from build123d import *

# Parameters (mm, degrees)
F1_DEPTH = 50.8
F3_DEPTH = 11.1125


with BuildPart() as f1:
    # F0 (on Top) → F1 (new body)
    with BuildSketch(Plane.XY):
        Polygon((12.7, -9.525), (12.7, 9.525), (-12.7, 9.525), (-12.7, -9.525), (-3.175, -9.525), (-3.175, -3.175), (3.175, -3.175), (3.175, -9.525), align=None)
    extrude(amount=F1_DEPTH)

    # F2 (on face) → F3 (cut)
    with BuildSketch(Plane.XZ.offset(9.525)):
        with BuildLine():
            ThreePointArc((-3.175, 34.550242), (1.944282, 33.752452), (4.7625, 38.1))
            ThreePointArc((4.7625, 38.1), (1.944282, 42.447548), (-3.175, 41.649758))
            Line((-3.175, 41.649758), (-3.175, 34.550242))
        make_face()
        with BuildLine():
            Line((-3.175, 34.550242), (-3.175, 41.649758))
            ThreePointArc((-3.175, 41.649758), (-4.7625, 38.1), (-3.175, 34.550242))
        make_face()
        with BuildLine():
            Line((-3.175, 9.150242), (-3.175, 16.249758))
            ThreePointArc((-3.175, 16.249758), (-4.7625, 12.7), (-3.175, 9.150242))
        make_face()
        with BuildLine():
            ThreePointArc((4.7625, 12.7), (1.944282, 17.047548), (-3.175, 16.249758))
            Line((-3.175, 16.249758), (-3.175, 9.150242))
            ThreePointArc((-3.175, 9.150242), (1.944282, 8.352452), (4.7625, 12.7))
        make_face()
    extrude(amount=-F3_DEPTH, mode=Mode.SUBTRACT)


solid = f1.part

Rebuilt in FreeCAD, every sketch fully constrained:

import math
import FreeCAD as App
import Part
import Sketcher
from FreeCAD import Vector
Q = App.Units.Quantity

doc = App.newDocument("Part")
body = doc.addObject("PartDesign::Body", "Body")

# Sketch on XY plane
sketch1 = body.newObject("Sketcher::SketchObject", "Sketch")
sketch1.AttachmentSupport = (doc.getObject("XY_Plane"), [""])
sketch1.MapMode = "FlatFace"
sketch1.addGeometry([
    Part.LineSegment(Vector(13, -10, 0), Vector(13, 10, 0)),  # 0
    Part.LineSegment(Vector(13, 10, 0), Vector(-13, 10, 0)),  # 1
    Part.LineSegment(Vector(-13, 10, 0), Vector(-13, -10, 0)),  # 2
    Part.LineSegment(Vector(-13, -10, 0), Vector(-3, -10, 0)),  # 3
    Part.LineSegment(Vector(-3, -10, 0), Vector(-3, -3, 0)),  # 4
    Part.LineSegment(Vector(-3, -3, 0), Vector(3, -3, 0)),  # 5
    Part.LineSegment(Vector(3, -3, 0), Vector(3, -10, 0)),  # 6
    Part.LineSegment(Vector(3, -10, 0), Vector(13, -10, 0)),  # 7
], False)
sketch1.addConstraint([
    Sketcher.Constraint("Coincident", 0, 2, 1, 1),
    Sketcher.Constraint("Coincident", 1, 2, 2, 1),
    Sketcher.Constraint("Coincident", 2, 2, 3, 1),
    Sketcher.Constraint("Coincident", 3, 2, 4, 1),
    Sketcher.Constraint("Coincident", 4, 2, 5, 1),
    Sketcher.Constraint("Coincident", 5, 2, 6, 1),
    Sketcher.Constraint("Coincident", 6, 2, 7, 1),
    Sketcher.Constraint("Coincident", 7, 2, 0, 1),
    Sketcher.Constraint("Vertical", 0),
    Sketcher.Constraint("Horizontal", 1),
    Sketcher.Constraint("Vertical", 2),
    Sketcher.Constraint("Horizontal", 3),
    Sketcher.Constraint("Vertical", 4),
    Sketcher.Constraint("Horizontal", 5),
    Sketcher.Constraint("Vertical", 6),
    Sketcher.Constraint("Horizontal", 7),
    Sketcher.Constraint("Symmetric", 0, 2, 2, 2, -1, 1),
    Sketcher.Constraint("Symmetric", 3, 2, 6, 2, -2),
    Sketcher.Constraint("Equal", 5, 4),
    Sketcher.Constraint("DistanceX", 1, 2, 1, 1, Q("1 in")),
    Sketcher.Constraint("DistanceX", 5, 1, 5, 2, Q("0.25 in")),
    Sketcher.Constraint("DistanceY", 0, 1, 0, 2, Q("0.75 in")),
])
pad1 = body.newObject("PartDesign::Pad", "Pad")
pad1.Profile = sketch1
pad1.Length = Q("2 in")

# Sketch on XZ plane
sketch2 = body.newObject("Sketcher::SketchObject", "Sketch001")
sketch2.AttachmentSupport = (doc.getObject("XZ_Plane"), [""])
sketch2.MapMode = "FlatFace"
sketch2.AttachmentOffset = App.Placement(Vector(0, 0, 0.375 * 25.4), App.Rotation())
sketch2.addGeometry([
    Part.ArcOfCircle(Part.Circle(Vector(0, 38.1, 0), Vector(0, 0, 1), 4.8), math.radians(-132), math.radians(0)),  # 0
    Part.ArcOfCircle(Part.Circle(Vector(0, 38.1, 0), Vector(0, 0, 1), 4.8), math.radians(0), math.radians(132)),  # 1
    Part.ArcOfCircle(Part.Circle(Vector(0, 38.1, 0), Vector(0, 0, 1), 4.8), math.radians(132), math.radians(228)),  # 2
    Part.ArcOfCircle(Part.Circle(Vector(0, 12.7, 0), Vector(0, 0, 1), 4.8), math.radians(132), math.radians(228)),  # 3
    Part.ArcOfCircle(Part.Circle(Vector(0, 12.7, 0), Vector(0, 0, 1), 4.8), math.radians(-132), math.radians(0)),  # 4
    Part.ArcOfCircle(Part.Circle(Vector(0, 12.7, 0), Vector(0, 0, 1), 4.8), math.radians(0), math.radians(132)),  # 5
], False)
sketch2.addConstraint([
    Sketcher.Constraint("Tangent", 0, 2, 1, 1),
    Sketcher.Constraint("Tangent", 1, 2, 2, 1),
    Sketcher.Constraint("Tangent", 2, 2, 0, 1),
    Sketcher.Constraint("Tangent", 3, 2, 4, 1),
    Sketcher.Constraint("Tangent", 4, 2, 5, 1),
    Sketcher.Constraint("Tangent", 5, 2, 3, 1),
    Sketcher.Constraint("Equal", 2, 3),
    Sketcher.Constraint("PointOnObject", 0, 3, -2),
    Sketcher.Constraint("PointOnObject", 3, 3, -2),
    Sketcher.Constraint("Horizontal", 2, 3, 0, 2),
    Sketcher.Constraint("Horizontal", 5, 3, 4, 2),
    Sketcher.Constraint("Vertical", 1, 2, 2, 2),
    Sketcher.Constraint("Vertical", 2, 2, 3, 2),
    Sketcher.Constraint("Vertical", 3, 2, 5, 2),
    Sketcher.Constraint("Radius", 0, Q("0.1875 in")),
    Sketcher.Constraint("DistanceY", 3, 3, 1, 3, Q("1 in")),
    Sketcher.Constraint("DistanceY", -1, 1, 0, 3, Q("1.5 in")),
    Sketcher.Constraint("DistanceX", 1, 2, -1, 1, Q("0.125 in")),
])
pocket1 = body.newObject("PartDesign::Pocket", "Pocket")
pocket1.Profile = sketch2
pocket1.Length = Q("0.4375 in")

doc.recompute()
